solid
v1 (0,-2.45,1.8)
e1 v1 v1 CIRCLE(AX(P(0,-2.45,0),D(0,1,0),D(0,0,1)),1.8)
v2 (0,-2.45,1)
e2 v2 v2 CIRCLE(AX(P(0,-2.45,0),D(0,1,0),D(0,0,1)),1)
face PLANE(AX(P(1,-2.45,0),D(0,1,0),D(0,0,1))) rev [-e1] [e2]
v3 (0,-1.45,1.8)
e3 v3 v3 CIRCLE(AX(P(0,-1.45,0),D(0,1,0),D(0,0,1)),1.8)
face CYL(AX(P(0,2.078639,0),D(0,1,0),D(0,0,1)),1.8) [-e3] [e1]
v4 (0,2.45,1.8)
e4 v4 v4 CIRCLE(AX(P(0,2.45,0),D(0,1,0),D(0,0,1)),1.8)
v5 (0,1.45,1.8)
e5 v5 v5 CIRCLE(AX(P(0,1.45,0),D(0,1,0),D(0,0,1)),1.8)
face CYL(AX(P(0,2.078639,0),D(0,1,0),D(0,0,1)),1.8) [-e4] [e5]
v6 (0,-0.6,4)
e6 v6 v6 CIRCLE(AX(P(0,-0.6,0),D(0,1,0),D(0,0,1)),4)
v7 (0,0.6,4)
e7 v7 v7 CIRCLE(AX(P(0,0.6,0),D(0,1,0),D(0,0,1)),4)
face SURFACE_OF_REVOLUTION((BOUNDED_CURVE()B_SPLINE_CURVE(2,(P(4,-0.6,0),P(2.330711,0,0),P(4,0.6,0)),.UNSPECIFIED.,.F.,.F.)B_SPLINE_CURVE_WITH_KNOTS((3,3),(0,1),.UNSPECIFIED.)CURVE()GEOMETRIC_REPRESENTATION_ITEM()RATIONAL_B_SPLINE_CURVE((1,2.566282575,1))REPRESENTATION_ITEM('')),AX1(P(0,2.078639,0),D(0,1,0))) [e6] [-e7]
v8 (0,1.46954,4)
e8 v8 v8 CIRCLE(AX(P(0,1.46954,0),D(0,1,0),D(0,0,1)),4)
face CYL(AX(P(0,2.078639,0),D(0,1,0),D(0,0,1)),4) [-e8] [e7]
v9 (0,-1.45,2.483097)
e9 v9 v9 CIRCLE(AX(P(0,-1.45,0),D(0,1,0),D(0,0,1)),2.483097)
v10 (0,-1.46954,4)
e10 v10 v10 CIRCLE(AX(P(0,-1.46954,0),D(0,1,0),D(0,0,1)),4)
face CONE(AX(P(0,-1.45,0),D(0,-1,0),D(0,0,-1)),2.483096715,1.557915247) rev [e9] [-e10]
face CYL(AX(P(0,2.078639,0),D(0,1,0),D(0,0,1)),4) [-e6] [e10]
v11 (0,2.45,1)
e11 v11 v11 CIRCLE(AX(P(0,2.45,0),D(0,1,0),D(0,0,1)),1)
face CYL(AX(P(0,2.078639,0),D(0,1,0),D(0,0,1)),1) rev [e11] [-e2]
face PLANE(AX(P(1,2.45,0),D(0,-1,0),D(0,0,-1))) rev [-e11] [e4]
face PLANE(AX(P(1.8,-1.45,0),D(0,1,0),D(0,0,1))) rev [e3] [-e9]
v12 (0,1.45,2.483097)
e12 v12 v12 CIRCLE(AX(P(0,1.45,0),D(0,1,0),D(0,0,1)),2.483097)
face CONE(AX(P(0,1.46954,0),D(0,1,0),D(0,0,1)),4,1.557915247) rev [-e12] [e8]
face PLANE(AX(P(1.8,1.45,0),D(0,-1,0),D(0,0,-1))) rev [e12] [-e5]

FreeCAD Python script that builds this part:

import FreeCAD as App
import Part
import Sketcher
from FreeCAD import Vector

doc = App.newDocument("Part")
body = doc.addObject("PartDesign::Body", "Body")

sketch1 = doc.addObject("Sketcher::SketchObject", "Sketch")
body.addObject(sketch1)
sketch1.AttachmentSupport = (doc.XY_Plane, [""])
sketch1.MapMode = "FlatFace"
sketch1.addGeometry(Part.LineSegment(Vector(1.8, -1.45, 0), Vector(2.483097, -1.45, 0)), False)
sketch1.addGeometry(Part.LineSegment(Vector(2.483097, -1.45, 0), Vector(4, -1.46954, 0)), False)
sketch1.addGeometry(Part.LineSegment(Vector(4, -1.46954, 0), Vector(4, -0.6, 0)), False)
sketch1.addGeometry(Part.BSplineCurve([Vector(4, 0.6, 0), Vector(2.330711, 0, 0), Vector(4, -0.6, 0)], [3, 3], [0, 1], False, 2, [1, 2.566282575, 1], False), False)
sketch1.addGeometry(Part.LineSegment(Vector(4, 0.6, 0), Vector(4, 1.46954, 0)), False)
sketch1.addGeometry(Part.LineSegment(Vector(4, 1.46954, 0), Vector(2.483097, 1.45, 0)), False)
sketch1.addGeometry(Part.LineSegment(Vector(2.483097, 1.45, 0), Vector(1.8, 1.45, 0)), False)
sketch1.addGeometry(Part.LineSegment(Vector(1.8, 1.45, 0), Vector(1.8, 2.45, 0)), False)
sketch1.addGeometry(Part.LineSegment(Vector(1.8, 2.45, 0), Vector(1, 2.45, 0)), False)
sketch1.addGeometry(Part.LineSegment(Vector(1, 2.45, 0), Vector(1, -2.45, 0)), False)
sketch1.addGeometry(Part.LineSegment(Vector(1, -2.45, 0), Vector(1.8, -2.45, 0)), False)
sketch1.addGeometry(Part.LineSegment(Vector(1.8, -2.45, 0), Vector(1.8, -1.45, 0)), False)
sketch1.addConstraint(Sketcher.Constraint("Block", 3))
sketch1.addConstraint(Sketcher.Constraint("Coincident", 0, 2, 1, 1))
sketch1.addConstraint(Sketcher.Constraint("Coincident", 1, 2, 2, 1))
sketch1.addConstraint(Sketcher.Constraint("Coincident", 2, 2, 3, 2))
sketch1.addConstraint(Sketcher.Constraint("Coincident", 3, 1, 4, 1))
sketch1.addConstraint(Sketcher.Constraint("Coincident", 4, 2, 5, 1))
sketch1.addConstraint(Sketcher.Constraint("Coincident", 5, 2, 6, 1))
sketch1.addConstraint(Sketcher.Constraint("Coincident", 6, 2, 7, 1))
sketch1.addConstraint(Sketcher.Constraint("Coincident", 7, 2, 8, 1))
sketch1.addConstraint(Sketcher.Constraint("Coincident", 8, 2, 9, 1))
sketch1.addConstraint(Sketcher.Constraint("Coincident", 9, 2, 10, 1))
sketch1.addConstraint(Sketcher.Constraint("Coincident", 10, 2, 11, 1))
sketch1.addConstraint(Sketcher.Constraint("Coincident", 11, 2, 0, 1))
sketch1.addConstraint(Sketcher.Constraint("Horizontal", 0))
sketch1.addConstraint(Sketcher.Constraint("Vertical", 2))
sketch1.addConstraint(Sketcher.Constraint("Vertical", 4))
sketch1.addConstraint(Sketcher.Constraint("Horizontal", 6))
sketch1.addConstraint(Sketcher.Constraint("Vertical", 7))
sketch1.addConstraint(Sketcher.Constraint("Horizontal", 8))
sketch1.addConstraint(Sketcher.Constraint("Vertical", 9))
sketch1.addConstraint(Sketcher.Constraint("Horizontal", 10))
sketch1.addConstraint(Sketcher.Constraint("Vertical", 11))
sketch1.addConstraint(Sketcher.Constraint("Symmetric", 0, 2, 5, 2, -1))
sketch1.addConstraint(Sketcher.Constraint("Symmetric", 7, 2, 10, 2, -1))
sketch1.addConstraint(Sketcher.Constraint("Equal", 2, 4))
sketch1.addConstraint(Sketcher.Constraint("DistanceY", 7, 1, 7, 2, 1.0))
sketch1.addConstraint(Sketcher.Constraint("DistanceX", 8, 2, 8, 1, 0.8))
sketch1.addConstraint(Sketcher.Constraint("DistanceY", 9, 2, 9, 1, 4.9))
sketch1.addConstraint(Sketcher.Constraint("DistanceX", -1, 1, 8, 2, 1.0))
sketch1.addConstraint(Sketcher.Constraint("DistanceY", 2, 1, 2, 2, 0.86954))
sketch1.addConstraint(Sketcher.Constraint("Distance", 1, 1.517029))
revolution = doc.addObject("PartDesign::Revolution", "Revolution")
body.addObject(revolution)
revolution.Profile = sketch1
revolution.ReferenceAxis = (sketch1, ["V_Axis"])
revolution.Angle = 360

doc.recompute()
